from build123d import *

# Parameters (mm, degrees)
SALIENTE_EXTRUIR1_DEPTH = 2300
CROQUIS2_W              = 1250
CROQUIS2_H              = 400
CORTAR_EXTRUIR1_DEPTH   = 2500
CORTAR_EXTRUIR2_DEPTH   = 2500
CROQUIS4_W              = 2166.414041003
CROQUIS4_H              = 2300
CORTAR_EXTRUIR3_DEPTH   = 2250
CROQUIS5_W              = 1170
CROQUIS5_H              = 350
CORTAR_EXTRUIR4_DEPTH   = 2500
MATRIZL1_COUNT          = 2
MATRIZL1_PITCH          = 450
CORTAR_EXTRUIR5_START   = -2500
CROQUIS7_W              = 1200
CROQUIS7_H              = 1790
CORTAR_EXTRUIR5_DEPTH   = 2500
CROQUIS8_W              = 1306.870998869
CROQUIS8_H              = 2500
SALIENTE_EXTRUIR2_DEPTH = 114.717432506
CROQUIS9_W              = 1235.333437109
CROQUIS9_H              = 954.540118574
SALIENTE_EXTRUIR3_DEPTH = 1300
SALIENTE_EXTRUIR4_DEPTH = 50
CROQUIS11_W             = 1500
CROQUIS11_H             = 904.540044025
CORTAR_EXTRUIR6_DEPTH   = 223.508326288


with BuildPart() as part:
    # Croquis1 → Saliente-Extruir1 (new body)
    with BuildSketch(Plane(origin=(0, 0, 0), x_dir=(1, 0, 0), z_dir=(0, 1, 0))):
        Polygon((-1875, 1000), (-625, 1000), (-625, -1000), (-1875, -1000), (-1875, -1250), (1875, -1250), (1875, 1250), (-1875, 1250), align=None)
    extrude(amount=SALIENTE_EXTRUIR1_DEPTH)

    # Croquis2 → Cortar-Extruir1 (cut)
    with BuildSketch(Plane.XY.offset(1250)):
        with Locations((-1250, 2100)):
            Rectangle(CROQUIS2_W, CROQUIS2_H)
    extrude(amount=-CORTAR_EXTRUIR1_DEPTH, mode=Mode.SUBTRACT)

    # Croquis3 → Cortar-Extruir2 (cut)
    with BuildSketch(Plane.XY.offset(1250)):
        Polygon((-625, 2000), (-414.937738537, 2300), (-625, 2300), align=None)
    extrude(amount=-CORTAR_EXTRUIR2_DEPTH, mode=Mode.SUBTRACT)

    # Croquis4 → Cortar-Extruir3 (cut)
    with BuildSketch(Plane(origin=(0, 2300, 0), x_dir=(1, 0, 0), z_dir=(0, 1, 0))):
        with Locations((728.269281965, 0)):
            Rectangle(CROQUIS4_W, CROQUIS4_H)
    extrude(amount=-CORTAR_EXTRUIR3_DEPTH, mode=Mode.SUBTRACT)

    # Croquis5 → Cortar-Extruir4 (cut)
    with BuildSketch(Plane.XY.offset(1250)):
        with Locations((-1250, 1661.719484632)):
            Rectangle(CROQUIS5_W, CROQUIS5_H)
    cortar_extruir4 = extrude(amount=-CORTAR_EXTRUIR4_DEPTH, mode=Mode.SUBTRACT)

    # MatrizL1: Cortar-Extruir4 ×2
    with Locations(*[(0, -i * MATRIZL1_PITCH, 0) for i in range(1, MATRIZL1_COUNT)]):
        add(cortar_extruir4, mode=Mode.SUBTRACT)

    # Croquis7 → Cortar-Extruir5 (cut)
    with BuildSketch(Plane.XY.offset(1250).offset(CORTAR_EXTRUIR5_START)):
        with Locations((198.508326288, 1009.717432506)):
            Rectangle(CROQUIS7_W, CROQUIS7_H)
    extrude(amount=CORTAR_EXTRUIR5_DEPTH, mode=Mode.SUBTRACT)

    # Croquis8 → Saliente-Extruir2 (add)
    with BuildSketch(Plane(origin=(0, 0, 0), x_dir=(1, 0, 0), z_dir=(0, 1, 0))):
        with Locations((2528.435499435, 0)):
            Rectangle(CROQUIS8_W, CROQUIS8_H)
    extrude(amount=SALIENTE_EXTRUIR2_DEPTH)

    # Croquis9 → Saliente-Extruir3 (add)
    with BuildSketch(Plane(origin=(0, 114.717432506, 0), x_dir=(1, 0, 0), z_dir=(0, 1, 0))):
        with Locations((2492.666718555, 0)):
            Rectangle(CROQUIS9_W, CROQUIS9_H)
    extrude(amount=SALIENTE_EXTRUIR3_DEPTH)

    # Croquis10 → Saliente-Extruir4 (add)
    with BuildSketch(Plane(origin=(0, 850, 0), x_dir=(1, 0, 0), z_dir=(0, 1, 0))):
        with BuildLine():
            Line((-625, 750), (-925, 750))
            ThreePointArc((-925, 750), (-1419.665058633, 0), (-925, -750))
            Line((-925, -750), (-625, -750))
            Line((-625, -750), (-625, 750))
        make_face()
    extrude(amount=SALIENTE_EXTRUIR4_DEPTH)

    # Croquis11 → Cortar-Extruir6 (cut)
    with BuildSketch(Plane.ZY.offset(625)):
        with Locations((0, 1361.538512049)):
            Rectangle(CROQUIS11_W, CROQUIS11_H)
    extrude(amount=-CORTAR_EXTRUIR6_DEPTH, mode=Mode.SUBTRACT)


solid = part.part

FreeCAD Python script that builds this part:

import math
import FreeCAD as App
import Part
import Sketcher

V = App.Vector
Q = App.Units.Quantity

doc = App.newDocument("Part")
body = doc.addObject("PartDesign::Body", "Body")

# Sketch on XZ plane
sketch1 = body.newObject("Sketcher::SketchObject", "Sketch")
sketch1.AttachmentSupport = (doc.getObject("XZ_Plane"), [""])
sketch1.MapMode = "FlatFace"
sketch1.addGeometry([
    Part.LineSegment(V(-1875, -1000, 0), V(-625, -1000, 0)),  # 0
    Part.LineSegment(V(-625, -1000, 0), V(-625, 1000, 0)),  # 1
    Part.LineSegment(V(-625, 1000, 0), V(-1875, 1000, 0)),  # 2
    Part.LineSegment(V(-1875, 1000, 0), V(-1875, 1250, 0)),  # 3
    Part.LineSegment(V(-1875, 1250, 0), V(1875, 1250, 0)),  # 4
    Part.LineSegment(V(1875, 1250, 0), V(1875, -1250, 0)),  # 5
    Part.LineSegment(V(1875, -1250, 0), V(-1875, -1250, 0)),  # 6
    Part.LineSegment(V(-1875, -1250, 0), V(-1875, -1000, 0)),  # 7
], False)
sketch1.addConstraint([
    Sketcher.Constraint("Coincident", 0, 2, 1, 1),
    Sketcher.Constraint("Coincident", 1, 2, 2, 1),
    Sketcher.Constraint("Coincident", 2, 2, 3, 1),
    Sketcher.Constraint("Coincident", 3, 2, 4, 1),
    Sketcher.Constraint("Coincident", 4, 2, 5, 1),
    Sketcher.Constraint("Coincident", 5, 2, 6, 1),
    Sketcher.Constraint("Coincident", 6, 2, 7, 1),
    Sketcher.Constraint("Coincident", 7, 2, 0, 1),
    Sketcher.Constraint("Horizontal", 0),
    Sketcher.Constraint("Vertical", 1),
    Sketcher.Constraint("Horizontal", 2),
    Sketcher.Constraint("Vertical", 3),
    Sketcher.Constraint("Horizontal", 4),
    Sketcher.Constraint("Vertical", 5),
    Sketcher.Constraint("Horizontal", 6),
    Sketcher.Constraint("Vertical", 7),
    Sketcher.Constraint("Symmetric", 3, 2, 5, 2, -1, 1),
    Sketcher.Constraint("Symmetric", 2, 2, 7, 2, -1),
    Sketcher.Constraint("DistanceX", 0, 1, 0, 2, 1250.0),
    Sketcher.Constraint("DistanceX", 4, 1, 4, 2, 3750.0),
    Sketcher.Constraint("DistanceY", 1, 1, 1, 2, 2000.0),
    Sketcher.Constraint("DistanceY", 3, 1, 3, 2, 250.0),
])
pad1 = body.newObject("PartDesign::Pad", "Pad")
pad1.Profile = sketch1
pad1.Length = 2300
pad1.Reversed = True

# Sketch on XY plane
sketch2 = body.newObject("Sketcher::SketchObject", "Sketch001")
sketch2.AttachmentSupport = (doc.getObject("XY_Plane"), [""])
sketch2.MapMode = "FlatFace"
sketch2.AttachmentOffset = App.Placement(V(0, 0, 1250), App.Rotation())
sketch2.addGeometry([
    Part.LineSegment(V(-1875, 2300, 0), V(-1875, 1900, 0)),
    Part.LineSegment(V(-1875, 1900, 0), V(-625, 1900, 0)),
    Part.LineSegment(V(-625, 1900, 0), V(-625, 2300, 0)),
    Part.LineSegment(V(-625, 2300, 0), V(-1875, 2300, 0)),
], False)
sketch2.addConstraint([
    Sketcher.Constraint("Coincident", 0, 2, 1, 1),
    Sketcher.Constraint("Coincident", 1, 2, 2, 1),
    Sketcher.Constraint("Coincident", 2, 2, 3, 1),
    Sketcher.Constraint("Coincident", 3, 2, 0, 1),
    Sketcher.Constraint("Vertical", 0),
    Sketcher.Constraint("Horizontal", 1),
    Sketcher.Constraint("Vertical", 2),
    Sketcher.Constraint("Horizontal", 3),
    Sketcher.Constraint("DistanceX", 1, 1, 1, 2, 1250.0),
    Sketcher.Constraint("DistanceY", 0, 2, 0, 1, 400.0),
    Sketcher.Constraint("DistanceX", 0, 2, -1, 1, 1875.0),
    Sketcher.Constraint("DistanceY", -1, 1, 0, 2, 1900.0),
])
pocket1 = body.newObject("PartDesign::Pocket", "Pocket")
pocket1.Profile = sketch2
pocket1.Length = 2500

# Sketch on XY plane
sketch3 = body.newObject("Sketcher::SketchObject", "Sketch002")
sketch3.AttachmentSupport = (doc.getObject("XY_Plane"), [""])
sketch3.MapMode = "FlatFace"
sketch3.AttachmentOffset = App.Placement(V(0, 0, 1250), App.Rotation())
sketch3.addGeometry([
    Part.LineSegment(V(-625, 2000, 0), V(-414.937739, 2300, 0)),
    Part.LineSegment(V(-414.937739, 2300, 0), V(-625, 2300, 0)),
    Part.LineSegment(V(-625, 2300, 0), V(-625, 2000, 0)),
], False)
sketch3.addConstraint([
    Sketcher.Constraint("Coincident", 0, 2, 1, 1),
    Sketcher.Constraint("Coincident", 1, 2, 2, 1),
    Sketcher.Constraint("Coincident", 2, 2, 0, 1),
    Sketcher.Constraint("Horizontal", 1),
    Sketcher.Constraint("Vertical", 2),
    Sketcher.Constraint("DistanceY", 2, 2, 2, 1, 300.0),
    Sketcher.Constraint("Angle", 0, Q("55 deg")),
    Sketcher.Constraint("DistanceY", -1, 1, 0, 2, 2300.0),
    Sketcher.Constraint("DistanceX", 1, 2, -1, 1, 625.0),
])
pocket2 = body.newObject("PartDesign::Pocket", "Pocket001")
pocket2.Profile = sketch3
pocket2.Length = 2500

# Sketch on XZ plane
sketch4 = body.newObject("Sketcher::SketchObject", "Sketch003")
sketch4.AttachmentSupport = (doc.getObject("XZ_Plane"), [""])
sketch4.MapMode = "FlatFace"
sketch4.AttachmentOffset = App.Placement(V(0, 0, -2300), App.Rotation())
sketch4.addGeometry([
    Part.LineSegment(V(-354.937739, -1150, 0), V(-354.937739, 1150, 0)),
    Part.LineSegment(V(-354.937739, 1150, 0), V(1811.476302, 1150, 0)),
    Part.LineSegment(V(1811.476302, 1150, 0), V(1811.476302, -1150, 0)),
    Part.LineSegment(V(1811.476302, -1150, 0), V(-354.937739, -1150, 0)),
], False)
sketch4.addConstraint([
    Sketcher.Constraint("Coincident", 0, 2, 1, 1),
    Sketcher.Constraint("Coincident", 1, 2, 2, 1),
    Sketcher.Constraint("Coincident", 2, 2, 3, 1),
    Sketcher.Constraint("Coincident", 3, 2, 0, 1),
    Sketcher.Constraint("Vertical", 0),
    Sketcher.Constraint("Horizontal", 1),
    Sketcher.Constraint("Vertical", 2),
    Sketcher.Constraint("Horizontal", 3),
    Sketcher.Constraint("DistanceY", 0, 1, 0, 2, 2300.0),
    Sketcher.Constraint("DistanceY", -1, 1, 0, 2, 1150.0),
    Sketcher.Constraint("DistanceX", 1, 1, 1, 2, 2166.414041),
    Sketcher.Constraint("DistanceX", 0, 2, -1, 1, 354.937739),
])
pocket3 = body.newObject("PartDesign::Pocket", "Pocket002")
pocket3.Profile = sketch4
pocket3.Length = 2250
pocket3.Reversed = True

# Sketch on XY plane
sketch5 = body.newObject("Sketcher::SketchObject", "Sketch004")
sketch5.AttachmentSupport = (doc.getObject("XY_Plane"), [""])
sketch5.MapMode = "FlatFace"
sketch5.AttachmentOffset = App.Placement(V(0, 0, 1250), App.Rotation())
sketch5.addGeometry([
    Part.LineSegment(V(-1835, 1836.719485, 0), V(-1835, 1486.719485, 0)),
    Part.LineSegment(V(-1835, 1486.719485, 0), V(-665, 1486.719485, 0)),
    Part.LineSegment(V(-665, 1486.719485, 0), V(-665, 1836.719485, 0)),
    Part.LineSegment(V(-665, 1836.719485, 0), V(-1835, 1836.719485, 0)),
], False)
sketch5.addConstraint([
    Sketcher.Constraint("Coincident", 0, 2, 1, 1),
    Sketcher.Constraint("Coincident", 1, 2, 2, 1),
    Sketcher.Constraint("Coincident", 2, 2, 3, 1),
    Sketcher.Constraint("Coincident", 3, 2, 0, 1),
    Sketcher.Constraint("Vertical", 0),
    Sketcher.Constraint("Horizontal", 1),
    Sketcher.Constraint("Vertical", 2),
    Sketcher.Constraint("Horizontal", 3),
    Sketcher.Constraint("DistanceX", 1, 1, 1, 2, 1170.0),
    Sketcher.Constraint("DistanceY", 0, 2, 0, 1, 350.0),
    Sketcher.Constraint("DistanceX", 0, 2, -1, 1, 1835.0),
    Sketcher.Constraint("DistanceY", -1, 1, 0, 2, 1486.719485),
])
pocket4 = body.newObject("PartDesign::Pocket", "Pocket003")
pocket4.Profile = sketch5
pocket4.Length = 2500
doc.recompute()

linearpattern = body.newObject("PartDesign::LinearPattern", "LinearPattern")
linearpattern.Originals = [pocket4]
linearpattern.Direction = (doc.getObject("Y_Axis"), [""])
linearpattern.Mode = "offset"
linearpattern.Offset = 450
linearpattern.Occurrences = 2
linearpattern.Reversed = True
body.Tip = linearpattern

# Sketch on XY plane
sketch6 = body.newObject("Sketcher::SketchObject", "Sketch005")
sketch6.AttachmentSupport = (doc.getObject("XY_Plane"), [""])
sketch6.MapMode = "FlatFace"
sketch6.AttachmentOffset = App.Placement(V(0, 0, -1250), App.Rotation())
sketch6.addGeometry([
    Part.LineSegment(V(-401.491674, 1904.717433, 0), V(-401.491674, 114.717433, 0)),
    Part.LineSegment(V(-401.491674, 114.717433, 0), V(798.508326, 114.717433, 0)),
    Part.LineSegment(V(798.508326, 114.717433, 0), V(798.508326, 1904.717433, 0)),
    Part.LineSegment(V(798.508326, 1904.717433, 0), V(-401.491674, 1904.717433, 0)),
], False)
sketch6.addConstraint([
    Sketcher.Constraint("Coincident", 0, 2, 1, 1),
    Sketcher.Constraint("Coincident", 1, 2, 2, 1),
    Sketcher.Constraint("Coincident", 2, 2, 3, 1),
    Sketcher.Constraint("Coincident", 3, 2, 0, 1),
    Sketcher.Constraint("Vertical", 0),
    Sketcher.Constraint("Horizontal", 1),
    Sketcher.Constraint("Vertical", 2),
    Sketcher.Constraint("Horizontal", 3),
    Sketcher.Constraint("DistanceX", 1, 1, 1, 2, 1200.0),
    Sketcher.Constraint("DistanceY", 0, 2, 0, 1, 1790.0),
    Sketcher.Constraint("DistanceX", 0, 2, -1, 1, 401.491674),
    Sketcher.Constraint("DistanceY", -1, 1, 0, 2, 114.717433),
])
pocket5 = body.newObject("PartDesign::Pocket", "Pocket004")
pocket5.Profile = sketch6
pocket5.Length = 2500
pocket5.Reversed = True

# Sketch on XZ plane
sketch7 = body.newObject("Sketcher::SketchObject", "Sketch006")
sketch7.AttachmentSupport = (doc.getObject("XZ_Plane"), [""])
sketch7.MapMode = "FlatFace"
sketch7.addGeometry([
    Part.LineSegment(V(1875, -1250, 0), V(1875, 1250, 0)),
    Part.LineSegment(V(1875, 1250, 0), V(3181.870999, 1250, 0)),
    Part.LineSegment(V(3181.870999, 1250, 0), V(3181.870999, -1250, 0)),
    Part.LineSegment(V(3181.870999, -1250, 0), V(1875, -1250, 0)),
], False)
sketch7.addConstraint([
    Sketcher.Constraint("Coincident", 0, 2, 1, 1),
    Sketcher.Constraint("Coincident", 1, 2, 2, 1),
    Sketcher.Constraint("Coincident", 2, 2, 3, 1),
    Sketcher.Constraint("Coincident", 3, 2, 0, 1),
    Sketcher.Constraint("Vertical", 0),
    Sketcher.Constraint("Horizontal", 1),
    Sketcher.Constraint("Vertical", 2),
    Sketcher.Constraint("Horizontal", 3),
    Sketcher.Constraint("DistanceY", 0, 1, 0, 2, 2500.0),
    Sketcher.Constraint("DistanceX", -1, 1, 0, 2, 1875.0),
    Sketcher.Constraint("DistanceY", -1, 1, 0, 2, 1250.0),
    Sketcher.Constraint("DistanceX", 1, 1, 1, 2, 1306.870999),
])
pad2 = body.newObject("PartDesign::Pad", "Pad001")
pad2.Profile = sketch7
pad2.Length = 114.717433
pad2.Reversed = True

# Sketch on XZ plane
sketch8 = body.newObject("Sketcher::SketchObject", "Sketch007")
sketch8.AttachmentSupport = (doc.getObject("XZ_Plane"), [""])
sketch8.MapMode = "FlatFace"
sketch8.AttachmentOffset = App.Placement(V(0, 0, -114.717433), App.Rotation())
sketch8.addGeometry([
    Part.LineSegment(V(1875, -477.270059, 0), V(1875, 477.270059, 0)),
    Part.LineSegment(V(1875, 477.270059, 0), V(3110.333437, 477.270059, 0)),
    Part.LineSegment(V(3110.333437, 477.270059, 0), V(3110.333437, -477.270059, 0)),
    Part.LineSegment(V(3110.333437, -477.270059, 0), V(1875, -477.270059, 0)),
], False)
sketch8.addConstraint([
    Sketcher.Constraint("Coincident", 0, 2, 1, 1),
    Sketcher.Constraint("Coincident", 1, 2, 2, 1),
    Sketcher.Constraint("Coincident", 2, 2, 3, 1),
    Sketcher.Constraint("Coincident", 3, 2, 0, 1),
    Sketcher.Constraint("Vertical", 0),
    Sketcher.Constraint("Horizontal", 1),
    Sketcher.Constraint("Vertical", 2),
    Sketcher.Constraint("Horizontal", 3),
    Sketcher.Constraint("DistanceX", -1, 1, 0, 2, 1875.0),
    Sketcher.Constraint("DistanceY", 0, 1, 0, 2, 954.540119),
    Sketcher.Constraint("DistanceX", 1, 1, 1, 2, 1235.333437),
    Sketcher.Constraint("DistanceY", -1, 1, 0, 2, 477.270059),
])
pad3 = body.newObject("PartDesign::Pad", "Pad002")
pad3.Profile = sketch8
pad3.Length = 1300
pad3.Reversed = True

# Sketch on XZ plane
sketch9 = body.newObject("Sketcher::SketchObject", "Sketch008")
sketch9.AttachmentSupport = (doc.getObject("XZ_Plane"), [""])
sketch9.MapMode = "FlatFace"
sketch9.AttachmentOffset = App.Placement(V(0, 0, -850), App.Rotation())
sketch9.addGeometry([
    Part.LineSegment(V(-625, -750, 0), V(-925, -750, 0)),
    Part.ArcOfCircle(Part.Circle(V(-603.765991, 0, 0), V(0, 0, 1), 815.899068), math.radians(113.186032), math.radians(246.813968)),
    Part.LineSegment(V(-925, 750, 0), V(-625, 750, 0)),
    Part.LineSegment(V(-625, 750, 0), V(-625, -750, 0)),
], False)
sketch9.addConstraint([
    Sketcher.Constraint("Coincident", 0, 2, 1, 2),
    Sketcher.Constraint("Coincident", 1, 1, 2, 1),
    Sketcher.Constraint("Coincident", 2, 2, 3, 1),
    Sketcher.Constraint("Coincident", 3, 2, 0, 1),
    Sketcher.Constraint("Horizontal", 0),
    Sketcher.Constraint("Horizontal", 2),
    Sketcher.Constraint("Vertical", 3),
    Sketcher.Constraint("PointOnObject", 1, 3, -1),
    Sketcher.Constraint("Equal", 0, 2),
    Sketcher.Constraint("DistanceX", 0, 2, 0, 1, 300.0),
    Sketcher.Constraint("DistanceY", 3, 2, 3, 1, 1500.0),
    Sketcher.Constraint("DistanceX", 0, 2, -1, 1, 925.0),
    Sketcher.Constraint("Radius", 1, 815.899068),
])
pad4 = body.newObject("PartDesign::Pad", "Pad003")
pad4.Profile = sketch9
pad4.Length = 50
pad4.Reversed = True

# Sketch on YZ plane
sketch10 = body.newObject("Sketcher::SketchObject", "Sketch009")
sketch10.AttachmentSupport = (doc.getObject("YZ_Plane"), [""])
sketch10.MapMode = "FlatFace"
sketch10.AttachmentOffset = App.Placement(V(0, 0, -625), App.Rotation())
sketch10.addGeometry([
    Part.LineSegment(V(1813.808534, -750, 0), V(909.26849, -750, 0)),
    Part.LineSegment(V(909.26849, -750, 0), V(909.26849, 750, 0)),
    Part.LineSegment(V(909.26849, 750, 0), V(1813.808534, 750, 0)),
    Part.LineSegment(V(1813.808534, 750, 0), V(1813.808534, -750, 0)),
], False)
sketch10.addConstraint([
    Sketcher.Constraint("Coincident", 0, 2, 1, 1),
    Sketcher.Constraint("Coincident", 1, 2, 2, 1),
    Sketcher.Constraint("Coincident", 2, 2, 3, 1),
    Sketcher.Constraint("Coincident", 3, 2, 0, 1),
    Sketcher.Constraint("Horizontal", 0),
    Sketcher.Constraint("Vertical", 1),
    Sketcher.Constraint("Horizontal", 2),
    Sketcher.Constraint("Vertical", 3),
    Sketcher.Constraint("DistanceY", 1, 1, 1, 2, 1500.0),
    Sketcher.Constraint("DistanceY", 0, 2, -1, 1, 750.0),
    Sketcher.Constraint("DistanceX", 0, 2, 0, 1, 904.540044),
    Sketcher.Constraint("DistanceX", -1, 1, 0, 2, 909.26849),
])
pocket6 = body.newObject("PartDesign::Pocket", "Pocket005")
pocket6.Profile = sketch10
pocket6.Length = 223.508326
pocket6.Reversed = True

doc.recompute()
